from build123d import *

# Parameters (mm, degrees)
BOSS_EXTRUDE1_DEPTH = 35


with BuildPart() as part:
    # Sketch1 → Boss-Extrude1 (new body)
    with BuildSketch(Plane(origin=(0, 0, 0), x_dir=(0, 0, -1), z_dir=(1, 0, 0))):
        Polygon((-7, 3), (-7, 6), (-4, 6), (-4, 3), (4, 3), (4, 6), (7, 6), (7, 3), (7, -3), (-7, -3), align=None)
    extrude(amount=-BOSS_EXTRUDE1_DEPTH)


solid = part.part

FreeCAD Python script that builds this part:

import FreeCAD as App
import Part
import Sketcher
from FreeCAD import Vector


def add_polygon(sketch, points):
    """Adds a closed chain of lines whose ends are joined by coincident constraints."""
    first, n = sketch.GeometryCount, len(points)
    for a, b in zip(points, points[1:] + points[:1]):
        sketch.addGeometry(Part.LineSegment(App.Vector(*a, 0), App.Vector(*b, 0)), False)
    for i in range(n):
        sketch.addConstraint(Sketcher.Constraint("Coincident", first + i, 2, first + (i + 1) % n, 1))

doc = App.newDocument("Part")
body = doc.addObject("PartDesign::Body", "Body")

# Sketch on YZ plane
sketch1 = doc.addObject("Sketcher::SketchObject", "Sketch")
body.addObject(sketch1)
sketch1.AttachmentSupport = (doc.YZ_Plane, [""])
sketch1.MapMode = "FlatFace"
add_polygon(sketch1, [(6, 7), (-3, 7), (-3, -7), (6, -7), (6, -4), (3, -4), (3, 4), (6, 4)])  # lines 0-7
sketch1.addConstraint([
    Sketcher.Constraint("Horizontal", 0),
    Sketcher.Constraint("Vertical", 1),
    Sketcher.Constraint("Horizontal", 2),
    Sketcher.Constraint("Vertical", 3),
    Sketcher.Constraint("Horizontal", 4),
    Sketcher.Constraint("Vertical", 5),
    Sketcher.Constraint("Horizontal", 6),
    Sketcher.Constraint("Vertical", 7),
    Sketcher.Constraint("Symmetric", 3, 2, 6, 2, -1),
    Sketcher.Constraint("Equal", 6, 3),
    Sketcher.Constraint("Equal", 3, 7),
    Sketcher.Constraint("DistanceX", 0, 2, 0, 1, 9.0),
    Sketcher.Constraint("DistanceX", 4, 2, 4, 1, 3.0),
    Sketcher.Constraint("DistanceY", 1, 2, 1, 1, 14.0),
    Sketcher.Constraint("DistanceX", 0, 2, -1, 1, 3.0),
])
pad1 = doc.addObject("PartDesign::Pad", "Pad")
body.addObject(pad1)
pad1.Profile = sketch1
pad1.Length = 35
pad1.Reversed = True

doc.recompute()
